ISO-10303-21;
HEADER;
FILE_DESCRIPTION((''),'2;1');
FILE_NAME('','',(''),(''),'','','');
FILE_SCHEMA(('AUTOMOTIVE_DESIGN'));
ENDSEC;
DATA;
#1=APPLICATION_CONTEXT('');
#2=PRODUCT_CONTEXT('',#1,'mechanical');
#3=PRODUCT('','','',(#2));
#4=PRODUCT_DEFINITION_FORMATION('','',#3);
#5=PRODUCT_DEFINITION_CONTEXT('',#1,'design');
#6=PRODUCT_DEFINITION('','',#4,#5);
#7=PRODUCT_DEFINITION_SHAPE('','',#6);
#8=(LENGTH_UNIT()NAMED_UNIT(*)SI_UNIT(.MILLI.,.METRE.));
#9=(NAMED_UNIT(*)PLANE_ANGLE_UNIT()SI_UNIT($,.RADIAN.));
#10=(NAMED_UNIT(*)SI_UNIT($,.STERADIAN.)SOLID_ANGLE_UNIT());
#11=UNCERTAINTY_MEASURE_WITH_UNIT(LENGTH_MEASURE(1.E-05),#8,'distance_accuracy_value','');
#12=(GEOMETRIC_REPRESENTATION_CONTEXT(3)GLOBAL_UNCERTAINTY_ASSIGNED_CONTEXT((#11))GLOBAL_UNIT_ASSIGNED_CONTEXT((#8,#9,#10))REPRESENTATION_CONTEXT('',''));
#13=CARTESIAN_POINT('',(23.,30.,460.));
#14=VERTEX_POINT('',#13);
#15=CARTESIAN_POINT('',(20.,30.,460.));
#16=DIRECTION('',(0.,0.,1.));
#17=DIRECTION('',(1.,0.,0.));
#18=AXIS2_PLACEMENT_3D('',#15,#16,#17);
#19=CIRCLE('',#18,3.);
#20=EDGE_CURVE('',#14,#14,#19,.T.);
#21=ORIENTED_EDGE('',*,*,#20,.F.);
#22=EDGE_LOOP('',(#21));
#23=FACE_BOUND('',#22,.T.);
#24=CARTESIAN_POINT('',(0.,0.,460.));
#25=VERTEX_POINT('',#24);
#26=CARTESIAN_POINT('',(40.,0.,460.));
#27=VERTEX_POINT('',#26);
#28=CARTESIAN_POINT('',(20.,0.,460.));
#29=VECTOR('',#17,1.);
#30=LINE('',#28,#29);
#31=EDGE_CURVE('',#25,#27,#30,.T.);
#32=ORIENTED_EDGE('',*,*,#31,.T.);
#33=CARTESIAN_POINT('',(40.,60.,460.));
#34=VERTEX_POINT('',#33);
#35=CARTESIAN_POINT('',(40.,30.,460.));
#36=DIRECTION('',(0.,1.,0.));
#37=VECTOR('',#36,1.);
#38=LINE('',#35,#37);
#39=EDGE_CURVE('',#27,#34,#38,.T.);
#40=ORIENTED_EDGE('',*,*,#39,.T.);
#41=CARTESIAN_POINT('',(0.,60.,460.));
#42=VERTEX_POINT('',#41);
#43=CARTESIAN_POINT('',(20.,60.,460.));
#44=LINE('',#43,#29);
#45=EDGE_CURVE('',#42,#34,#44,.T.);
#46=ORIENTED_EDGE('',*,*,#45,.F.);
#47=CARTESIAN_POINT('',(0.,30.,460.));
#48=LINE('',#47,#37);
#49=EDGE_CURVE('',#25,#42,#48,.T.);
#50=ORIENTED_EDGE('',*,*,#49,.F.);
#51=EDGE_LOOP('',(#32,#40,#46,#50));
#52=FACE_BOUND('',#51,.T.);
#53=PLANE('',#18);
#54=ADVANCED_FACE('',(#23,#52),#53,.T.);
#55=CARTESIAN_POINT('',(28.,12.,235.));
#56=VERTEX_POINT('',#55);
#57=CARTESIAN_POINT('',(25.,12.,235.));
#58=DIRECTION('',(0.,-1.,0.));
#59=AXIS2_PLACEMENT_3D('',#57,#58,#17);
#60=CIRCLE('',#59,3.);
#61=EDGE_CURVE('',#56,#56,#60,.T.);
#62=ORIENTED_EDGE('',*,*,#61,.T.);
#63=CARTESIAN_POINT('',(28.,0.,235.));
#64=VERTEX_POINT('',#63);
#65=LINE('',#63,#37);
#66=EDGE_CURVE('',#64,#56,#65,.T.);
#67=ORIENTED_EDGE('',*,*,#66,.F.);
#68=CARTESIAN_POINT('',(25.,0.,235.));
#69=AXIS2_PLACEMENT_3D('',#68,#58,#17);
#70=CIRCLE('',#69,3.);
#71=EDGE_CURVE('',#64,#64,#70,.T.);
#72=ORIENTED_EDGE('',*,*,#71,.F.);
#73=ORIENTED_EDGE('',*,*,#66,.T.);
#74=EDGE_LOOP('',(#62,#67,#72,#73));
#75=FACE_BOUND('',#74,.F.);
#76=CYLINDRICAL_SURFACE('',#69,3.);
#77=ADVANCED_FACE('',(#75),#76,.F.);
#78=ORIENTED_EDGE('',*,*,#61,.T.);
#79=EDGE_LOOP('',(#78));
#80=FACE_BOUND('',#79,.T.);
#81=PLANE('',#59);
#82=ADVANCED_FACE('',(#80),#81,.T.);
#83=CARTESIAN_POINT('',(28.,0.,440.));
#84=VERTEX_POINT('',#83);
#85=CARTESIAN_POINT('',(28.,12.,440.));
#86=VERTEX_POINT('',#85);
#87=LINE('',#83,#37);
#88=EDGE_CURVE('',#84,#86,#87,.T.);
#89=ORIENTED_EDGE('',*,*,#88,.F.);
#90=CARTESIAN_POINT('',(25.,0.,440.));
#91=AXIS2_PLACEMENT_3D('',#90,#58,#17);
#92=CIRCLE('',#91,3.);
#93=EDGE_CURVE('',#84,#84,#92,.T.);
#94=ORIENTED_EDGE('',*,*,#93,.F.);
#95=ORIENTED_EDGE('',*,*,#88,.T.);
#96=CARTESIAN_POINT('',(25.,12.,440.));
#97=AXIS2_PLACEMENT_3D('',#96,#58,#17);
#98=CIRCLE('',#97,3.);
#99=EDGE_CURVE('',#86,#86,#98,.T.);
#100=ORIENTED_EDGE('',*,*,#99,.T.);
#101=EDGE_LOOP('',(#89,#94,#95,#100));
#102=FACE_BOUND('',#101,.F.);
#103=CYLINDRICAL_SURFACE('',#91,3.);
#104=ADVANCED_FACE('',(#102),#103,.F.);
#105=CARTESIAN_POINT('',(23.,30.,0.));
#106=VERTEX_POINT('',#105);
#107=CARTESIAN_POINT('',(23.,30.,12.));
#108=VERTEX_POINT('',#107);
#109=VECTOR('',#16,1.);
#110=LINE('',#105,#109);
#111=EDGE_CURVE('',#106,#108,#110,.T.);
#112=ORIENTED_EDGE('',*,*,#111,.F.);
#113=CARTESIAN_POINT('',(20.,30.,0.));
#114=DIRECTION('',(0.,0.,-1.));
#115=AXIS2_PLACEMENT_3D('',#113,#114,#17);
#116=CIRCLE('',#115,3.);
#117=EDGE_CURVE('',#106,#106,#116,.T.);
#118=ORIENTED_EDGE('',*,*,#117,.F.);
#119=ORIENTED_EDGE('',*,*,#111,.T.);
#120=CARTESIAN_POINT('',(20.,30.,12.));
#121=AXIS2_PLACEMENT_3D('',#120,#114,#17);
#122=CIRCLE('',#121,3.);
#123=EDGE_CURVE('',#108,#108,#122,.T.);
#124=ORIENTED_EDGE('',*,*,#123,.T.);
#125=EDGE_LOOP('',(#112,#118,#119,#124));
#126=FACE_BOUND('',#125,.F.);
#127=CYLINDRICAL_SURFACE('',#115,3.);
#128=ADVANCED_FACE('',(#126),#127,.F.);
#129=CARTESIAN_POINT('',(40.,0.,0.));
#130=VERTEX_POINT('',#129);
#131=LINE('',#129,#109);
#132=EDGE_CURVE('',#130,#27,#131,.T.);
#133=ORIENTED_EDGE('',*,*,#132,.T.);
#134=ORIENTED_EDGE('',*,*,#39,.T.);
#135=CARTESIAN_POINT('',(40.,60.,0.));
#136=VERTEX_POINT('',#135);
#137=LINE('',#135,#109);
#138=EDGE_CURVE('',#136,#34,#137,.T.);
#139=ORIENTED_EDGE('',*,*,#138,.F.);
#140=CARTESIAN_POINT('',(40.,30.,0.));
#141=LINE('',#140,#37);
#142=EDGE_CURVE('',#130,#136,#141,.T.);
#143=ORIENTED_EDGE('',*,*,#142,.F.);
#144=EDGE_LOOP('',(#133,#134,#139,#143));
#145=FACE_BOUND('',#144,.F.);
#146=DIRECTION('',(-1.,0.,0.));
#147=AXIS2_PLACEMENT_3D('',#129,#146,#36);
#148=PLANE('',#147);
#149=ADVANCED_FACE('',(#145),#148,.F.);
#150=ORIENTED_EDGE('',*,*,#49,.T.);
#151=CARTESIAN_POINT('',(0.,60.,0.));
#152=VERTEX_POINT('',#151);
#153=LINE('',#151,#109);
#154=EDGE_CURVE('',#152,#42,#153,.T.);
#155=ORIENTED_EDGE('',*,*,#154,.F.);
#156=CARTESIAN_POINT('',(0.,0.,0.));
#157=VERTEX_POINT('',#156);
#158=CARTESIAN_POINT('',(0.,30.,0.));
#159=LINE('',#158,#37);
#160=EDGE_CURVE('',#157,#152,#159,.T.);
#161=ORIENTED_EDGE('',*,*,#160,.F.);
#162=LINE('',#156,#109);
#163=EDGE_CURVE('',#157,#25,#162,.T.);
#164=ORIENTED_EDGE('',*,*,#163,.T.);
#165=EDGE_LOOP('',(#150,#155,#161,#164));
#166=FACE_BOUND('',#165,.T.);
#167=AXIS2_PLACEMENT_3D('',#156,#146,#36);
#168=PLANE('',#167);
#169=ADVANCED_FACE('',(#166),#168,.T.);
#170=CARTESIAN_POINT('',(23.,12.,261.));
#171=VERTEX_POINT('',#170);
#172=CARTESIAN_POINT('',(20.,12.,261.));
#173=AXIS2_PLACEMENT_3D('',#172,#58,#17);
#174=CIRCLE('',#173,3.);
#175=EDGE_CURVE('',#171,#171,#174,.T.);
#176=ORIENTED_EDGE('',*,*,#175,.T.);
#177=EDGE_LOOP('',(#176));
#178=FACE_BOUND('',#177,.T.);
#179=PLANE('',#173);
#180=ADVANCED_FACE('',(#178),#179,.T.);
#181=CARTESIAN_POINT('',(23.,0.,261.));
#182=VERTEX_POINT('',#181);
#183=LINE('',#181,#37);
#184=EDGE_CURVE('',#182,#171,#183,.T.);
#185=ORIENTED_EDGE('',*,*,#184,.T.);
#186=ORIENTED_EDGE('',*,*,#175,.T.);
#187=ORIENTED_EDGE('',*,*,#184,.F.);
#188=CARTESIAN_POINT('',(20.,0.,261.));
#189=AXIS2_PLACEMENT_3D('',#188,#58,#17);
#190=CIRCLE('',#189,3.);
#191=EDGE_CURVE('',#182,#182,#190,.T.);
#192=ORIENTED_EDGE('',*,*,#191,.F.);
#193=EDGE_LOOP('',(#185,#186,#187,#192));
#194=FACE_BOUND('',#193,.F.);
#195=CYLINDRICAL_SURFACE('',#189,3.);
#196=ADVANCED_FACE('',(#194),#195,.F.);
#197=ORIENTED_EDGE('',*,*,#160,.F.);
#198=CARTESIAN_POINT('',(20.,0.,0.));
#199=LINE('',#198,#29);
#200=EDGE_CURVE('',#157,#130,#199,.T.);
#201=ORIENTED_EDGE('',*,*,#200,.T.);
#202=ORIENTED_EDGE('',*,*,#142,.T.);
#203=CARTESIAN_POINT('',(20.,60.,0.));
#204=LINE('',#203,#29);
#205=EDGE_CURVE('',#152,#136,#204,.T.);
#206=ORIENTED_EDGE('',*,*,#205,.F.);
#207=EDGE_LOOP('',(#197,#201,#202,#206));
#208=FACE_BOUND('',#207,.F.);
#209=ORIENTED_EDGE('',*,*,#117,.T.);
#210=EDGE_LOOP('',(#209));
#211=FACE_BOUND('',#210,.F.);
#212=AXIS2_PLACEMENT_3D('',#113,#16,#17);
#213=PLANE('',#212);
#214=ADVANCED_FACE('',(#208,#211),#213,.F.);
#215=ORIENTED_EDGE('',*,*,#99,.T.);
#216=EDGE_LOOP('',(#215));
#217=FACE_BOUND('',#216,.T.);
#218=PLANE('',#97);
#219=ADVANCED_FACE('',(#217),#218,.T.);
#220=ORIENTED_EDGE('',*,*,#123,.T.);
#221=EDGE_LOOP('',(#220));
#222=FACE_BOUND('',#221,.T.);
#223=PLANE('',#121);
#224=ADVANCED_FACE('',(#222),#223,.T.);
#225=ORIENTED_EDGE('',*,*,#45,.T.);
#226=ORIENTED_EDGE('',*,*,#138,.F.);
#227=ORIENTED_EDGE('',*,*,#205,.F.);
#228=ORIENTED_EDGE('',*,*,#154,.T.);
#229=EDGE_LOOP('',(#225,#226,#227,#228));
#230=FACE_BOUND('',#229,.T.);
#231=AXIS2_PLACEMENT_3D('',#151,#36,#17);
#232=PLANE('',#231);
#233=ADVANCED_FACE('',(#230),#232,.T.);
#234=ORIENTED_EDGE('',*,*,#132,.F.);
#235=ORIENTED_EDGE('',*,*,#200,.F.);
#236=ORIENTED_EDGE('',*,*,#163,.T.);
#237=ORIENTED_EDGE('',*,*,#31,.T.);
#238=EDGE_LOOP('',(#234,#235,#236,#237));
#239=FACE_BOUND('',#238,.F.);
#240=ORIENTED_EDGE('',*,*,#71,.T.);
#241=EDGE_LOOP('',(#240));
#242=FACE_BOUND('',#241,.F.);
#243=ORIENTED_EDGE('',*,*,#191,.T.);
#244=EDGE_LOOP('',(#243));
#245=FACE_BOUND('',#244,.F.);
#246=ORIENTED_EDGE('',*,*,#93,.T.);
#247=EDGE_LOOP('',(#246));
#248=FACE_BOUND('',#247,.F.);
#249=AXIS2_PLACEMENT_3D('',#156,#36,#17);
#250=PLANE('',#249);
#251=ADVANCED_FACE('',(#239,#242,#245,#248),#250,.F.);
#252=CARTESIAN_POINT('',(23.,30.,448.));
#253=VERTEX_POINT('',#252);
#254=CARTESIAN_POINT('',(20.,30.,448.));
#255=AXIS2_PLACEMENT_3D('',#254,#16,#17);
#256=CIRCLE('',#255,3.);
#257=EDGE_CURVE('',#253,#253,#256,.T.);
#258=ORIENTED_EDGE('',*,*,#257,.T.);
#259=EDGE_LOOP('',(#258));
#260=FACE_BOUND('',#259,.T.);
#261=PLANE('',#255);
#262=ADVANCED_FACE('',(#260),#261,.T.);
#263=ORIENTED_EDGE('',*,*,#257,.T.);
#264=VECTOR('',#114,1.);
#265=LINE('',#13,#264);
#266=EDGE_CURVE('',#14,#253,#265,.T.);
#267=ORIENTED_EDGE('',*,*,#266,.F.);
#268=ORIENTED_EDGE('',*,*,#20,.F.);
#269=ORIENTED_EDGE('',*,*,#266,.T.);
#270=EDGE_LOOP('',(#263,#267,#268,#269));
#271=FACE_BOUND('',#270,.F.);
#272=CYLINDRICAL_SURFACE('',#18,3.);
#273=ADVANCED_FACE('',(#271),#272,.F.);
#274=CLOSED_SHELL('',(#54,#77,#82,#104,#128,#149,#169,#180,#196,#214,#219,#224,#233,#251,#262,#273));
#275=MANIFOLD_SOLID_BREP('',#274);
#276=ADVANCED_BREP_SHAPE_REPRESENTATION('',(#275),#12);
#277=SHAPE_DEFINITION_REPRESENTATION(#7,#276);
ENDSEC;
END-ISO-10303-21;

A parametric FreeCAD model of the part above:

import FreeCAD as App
import Part
import Sketcher
Q = App.Units.Quantity

doc = App.newDocument("Part")
body = doc.addObject("PartDesign::Body", "Body")

# Sketch on XY plane
sketch1 = doc.addObject("Sketcher::SketchObject", "Sketch")
body.addObject(sketch1)
sketch1.AttachmentSupport = (doc.XY_Plane, [""])
sketch1.MapMode = "FlatFace"
sketch1.addGeometry([
    Part.LineSegment(App.Vector(0, 60, 0), App.Vector(0, 0, 0)),
    Part.LineSegment(App.Vector(0, 0, 0), App.Vector(40, 0, 0)),
    Part.LineSegment(App.Vector(40, 0, 0), App.Vector(40, 60, 0)),
    Part.LineSegment(App.Vector(40, 60, 0), App.Vector(0, 60, 0)),
], False)
sketch1.addConstraint([
    Sketcher.Constraint("Coincident", 0, 2, 1, 1),
    Sketcher.Constraint("Coincident", 1, 2, 2, 1),
    Sketcher.Constraint("Coincident", 2, 2, 3, 1),
    Sketcher.Constraint("Coincident", 3, 2, 0, 1),
    Sketcher.Constraint("Vertical", 0),
    Sketcher.Constraint("Horizontal", 1),
    Sketcher.Constraint("Vertical", 2),
    Sketcher.Constraint("Horizontal", 3),
    Sketcher.Constraint("Coincident", 0, 2, -1, 1),
    Sketcher.Constraint("DistanceX", 1, 1, 1, 2, Q("40 mm")),
    Sketcher.Constraint("DistanceY", 0, 2, 0, 1, Q("60 mm")),
])
pad1 = doc.addObject("PartDesign::Pad", "Pad")
body.addObject(pad1)
pad1.Profile = sketch1
pad1.Length = 460

# Sketch on XY plane
sketch2 = doc.addObject("Sketcher::SketchObject", "Sketch001")
body.addObject(sketch2)
sketch2.AttachmentSupport = (doc.XY_Plane, [""])
sketch2.MapMode = "FlatFace"
sketch2.addGeometry(Part.Circle(App.Vector(20, 30, 0), App.Vector(0, 0, 1), 3), False)
sketch2.addConstraint([
    Sketcher.Constraint("Diameter", 0, Q("6 mm")),
    Sketcher.Constraint("DistanceX", -1, 1, 0, 3, Q("20 mm")),
    Sketcher.Constraint("DistanceY", -1, 1, 0, 3, Q("30 mm")),
])
pocket1 = doc.addObject("PartDesign::Pocket", "Pocket")
body.addObject(pocket1)
pocket1.Profile = sketch2
pocket1.Length = 12
pocket1.Reversed = True

# Sketch on XY plane
sketch3 = doc.addObject("Sketcher::SketchObject", "Sketch002")
body.addObject(sketch3)
sketch3.AttachmentSupport = (doc.XY_Plane, [""])
sketch3.MapMode = "FlatFace"
sketch3.AttachmentOffset = App.Placement(App.Vector(0, 0, 460), App.Rotation())
sketch3.addGeometry(Part.Circle(App.Vector(20, 30, 0), App.Vector(0, 0, 1), 3), False)
sketch3.addConstraint([
    Sketcher.Constraint("Diameter", 0, Q("6 mm")),
    Sketcher.Constraint("DistanceX", -1, 1, 0, 3, Q("20 mm")),
    Sketcher.Constraint("DistanceY", -1, 1, 0, 3, Q("30 mm")),
])
pocket2 = doc.addObject("PartDesign::Pocket", "Pocket001")
body.addObject(pocket2)
pocket2.Profile = sketch3
pocket2.Length = 12

# Sketch on XZ plane
sketch4 = doc.addObject("Sketcher::SketchObject", "Sketch003")
body.addObject(sketch4)
sketch4.AttachmentSupport = (doc.XZ_Plane, [""])
sketch4.MapMode = "FlatFace"
sketch4.addGeometry(Part.Circle(App.Vector(20, 261, 0), App.Vector(0, 0, 1), 3), False)
sketch4.addConstraint([
    Sketcher.Constraint("Diameter", 0, Q("6 mm")),
    Sketcher.Constraint("DistanceX", -1, 1, 0, 3, Q("20 mm")),
    Sketcher.Constraint("DistanceY", -1, 1, 0, 3, Q("261 mm")),
])
pocket3 = doc.addObject("PartDesign::Pocket", "Pocket002")
body.addObject(pocket3)
pocket3.Profile = sketch4
pocket3.Length = 12

# Sketch on XZ plane
sketch5 = doc.addObject("Sketcher::SketchObject", "Sketch004")
body.addObject(sketch5)
sketch5.AttachmentSupport = (doc.XZ_Plane, [""])
sketch5.MapMode = "FlatFace"
sketch5.addGeometry(Part.Circle(App.Vector(25, 440, 0), App.Vector(0, 0, 1), 3), False)
sketch5.addConstraint([
    Sketcher.Constraint("Diameter", 0, Q("6 mm")),
    Sketcher.Constraint("DistanceX", -1, 1, 0, 3, Q("25 mm")),
    Sketcher.Constraint("DistanceY", -1, 1, 0, 3, Q("440 mm")),
])
pocket4 = doc.addObject("PartDesign::Pocket", "Pocket003")
body.addObject(pocket4)
pocket4.Profile = sketch5
pocket4.Length = 12

# Sketch on XZ plane
sketch6 = doc.addObject("Sketcher::SketchObject", "Sketch005")
body.addObject(sketch6)
sketch6.AttachmentSupport = (doc.XZ_Plane, [""])
sketch6.MapMode = "FlatFace"
sketch6.addGeometry(Part.Circle(App.Vector(25, 235, 0), App.Vector(0, 0, 1), 3), False)
sketch6.addConstraint([
    Sketcher.Constraint("Diameter", 0, Q("6 mm")),
    Sketcher.Constraint("DistanceX", -1, 1, 0, 3, Q("25 mm")),
    Sketcher.Constraint("DistanceY", -1, 1, 0, 3, Q("235 mm")),
])
pocket5 = doc.addObject("PartDesign::Pocket", "Pocket004")
body.addObject(pocket5)
pocket5.Profile = sketch6
pocket5.Length = 12

doc.recompute()
